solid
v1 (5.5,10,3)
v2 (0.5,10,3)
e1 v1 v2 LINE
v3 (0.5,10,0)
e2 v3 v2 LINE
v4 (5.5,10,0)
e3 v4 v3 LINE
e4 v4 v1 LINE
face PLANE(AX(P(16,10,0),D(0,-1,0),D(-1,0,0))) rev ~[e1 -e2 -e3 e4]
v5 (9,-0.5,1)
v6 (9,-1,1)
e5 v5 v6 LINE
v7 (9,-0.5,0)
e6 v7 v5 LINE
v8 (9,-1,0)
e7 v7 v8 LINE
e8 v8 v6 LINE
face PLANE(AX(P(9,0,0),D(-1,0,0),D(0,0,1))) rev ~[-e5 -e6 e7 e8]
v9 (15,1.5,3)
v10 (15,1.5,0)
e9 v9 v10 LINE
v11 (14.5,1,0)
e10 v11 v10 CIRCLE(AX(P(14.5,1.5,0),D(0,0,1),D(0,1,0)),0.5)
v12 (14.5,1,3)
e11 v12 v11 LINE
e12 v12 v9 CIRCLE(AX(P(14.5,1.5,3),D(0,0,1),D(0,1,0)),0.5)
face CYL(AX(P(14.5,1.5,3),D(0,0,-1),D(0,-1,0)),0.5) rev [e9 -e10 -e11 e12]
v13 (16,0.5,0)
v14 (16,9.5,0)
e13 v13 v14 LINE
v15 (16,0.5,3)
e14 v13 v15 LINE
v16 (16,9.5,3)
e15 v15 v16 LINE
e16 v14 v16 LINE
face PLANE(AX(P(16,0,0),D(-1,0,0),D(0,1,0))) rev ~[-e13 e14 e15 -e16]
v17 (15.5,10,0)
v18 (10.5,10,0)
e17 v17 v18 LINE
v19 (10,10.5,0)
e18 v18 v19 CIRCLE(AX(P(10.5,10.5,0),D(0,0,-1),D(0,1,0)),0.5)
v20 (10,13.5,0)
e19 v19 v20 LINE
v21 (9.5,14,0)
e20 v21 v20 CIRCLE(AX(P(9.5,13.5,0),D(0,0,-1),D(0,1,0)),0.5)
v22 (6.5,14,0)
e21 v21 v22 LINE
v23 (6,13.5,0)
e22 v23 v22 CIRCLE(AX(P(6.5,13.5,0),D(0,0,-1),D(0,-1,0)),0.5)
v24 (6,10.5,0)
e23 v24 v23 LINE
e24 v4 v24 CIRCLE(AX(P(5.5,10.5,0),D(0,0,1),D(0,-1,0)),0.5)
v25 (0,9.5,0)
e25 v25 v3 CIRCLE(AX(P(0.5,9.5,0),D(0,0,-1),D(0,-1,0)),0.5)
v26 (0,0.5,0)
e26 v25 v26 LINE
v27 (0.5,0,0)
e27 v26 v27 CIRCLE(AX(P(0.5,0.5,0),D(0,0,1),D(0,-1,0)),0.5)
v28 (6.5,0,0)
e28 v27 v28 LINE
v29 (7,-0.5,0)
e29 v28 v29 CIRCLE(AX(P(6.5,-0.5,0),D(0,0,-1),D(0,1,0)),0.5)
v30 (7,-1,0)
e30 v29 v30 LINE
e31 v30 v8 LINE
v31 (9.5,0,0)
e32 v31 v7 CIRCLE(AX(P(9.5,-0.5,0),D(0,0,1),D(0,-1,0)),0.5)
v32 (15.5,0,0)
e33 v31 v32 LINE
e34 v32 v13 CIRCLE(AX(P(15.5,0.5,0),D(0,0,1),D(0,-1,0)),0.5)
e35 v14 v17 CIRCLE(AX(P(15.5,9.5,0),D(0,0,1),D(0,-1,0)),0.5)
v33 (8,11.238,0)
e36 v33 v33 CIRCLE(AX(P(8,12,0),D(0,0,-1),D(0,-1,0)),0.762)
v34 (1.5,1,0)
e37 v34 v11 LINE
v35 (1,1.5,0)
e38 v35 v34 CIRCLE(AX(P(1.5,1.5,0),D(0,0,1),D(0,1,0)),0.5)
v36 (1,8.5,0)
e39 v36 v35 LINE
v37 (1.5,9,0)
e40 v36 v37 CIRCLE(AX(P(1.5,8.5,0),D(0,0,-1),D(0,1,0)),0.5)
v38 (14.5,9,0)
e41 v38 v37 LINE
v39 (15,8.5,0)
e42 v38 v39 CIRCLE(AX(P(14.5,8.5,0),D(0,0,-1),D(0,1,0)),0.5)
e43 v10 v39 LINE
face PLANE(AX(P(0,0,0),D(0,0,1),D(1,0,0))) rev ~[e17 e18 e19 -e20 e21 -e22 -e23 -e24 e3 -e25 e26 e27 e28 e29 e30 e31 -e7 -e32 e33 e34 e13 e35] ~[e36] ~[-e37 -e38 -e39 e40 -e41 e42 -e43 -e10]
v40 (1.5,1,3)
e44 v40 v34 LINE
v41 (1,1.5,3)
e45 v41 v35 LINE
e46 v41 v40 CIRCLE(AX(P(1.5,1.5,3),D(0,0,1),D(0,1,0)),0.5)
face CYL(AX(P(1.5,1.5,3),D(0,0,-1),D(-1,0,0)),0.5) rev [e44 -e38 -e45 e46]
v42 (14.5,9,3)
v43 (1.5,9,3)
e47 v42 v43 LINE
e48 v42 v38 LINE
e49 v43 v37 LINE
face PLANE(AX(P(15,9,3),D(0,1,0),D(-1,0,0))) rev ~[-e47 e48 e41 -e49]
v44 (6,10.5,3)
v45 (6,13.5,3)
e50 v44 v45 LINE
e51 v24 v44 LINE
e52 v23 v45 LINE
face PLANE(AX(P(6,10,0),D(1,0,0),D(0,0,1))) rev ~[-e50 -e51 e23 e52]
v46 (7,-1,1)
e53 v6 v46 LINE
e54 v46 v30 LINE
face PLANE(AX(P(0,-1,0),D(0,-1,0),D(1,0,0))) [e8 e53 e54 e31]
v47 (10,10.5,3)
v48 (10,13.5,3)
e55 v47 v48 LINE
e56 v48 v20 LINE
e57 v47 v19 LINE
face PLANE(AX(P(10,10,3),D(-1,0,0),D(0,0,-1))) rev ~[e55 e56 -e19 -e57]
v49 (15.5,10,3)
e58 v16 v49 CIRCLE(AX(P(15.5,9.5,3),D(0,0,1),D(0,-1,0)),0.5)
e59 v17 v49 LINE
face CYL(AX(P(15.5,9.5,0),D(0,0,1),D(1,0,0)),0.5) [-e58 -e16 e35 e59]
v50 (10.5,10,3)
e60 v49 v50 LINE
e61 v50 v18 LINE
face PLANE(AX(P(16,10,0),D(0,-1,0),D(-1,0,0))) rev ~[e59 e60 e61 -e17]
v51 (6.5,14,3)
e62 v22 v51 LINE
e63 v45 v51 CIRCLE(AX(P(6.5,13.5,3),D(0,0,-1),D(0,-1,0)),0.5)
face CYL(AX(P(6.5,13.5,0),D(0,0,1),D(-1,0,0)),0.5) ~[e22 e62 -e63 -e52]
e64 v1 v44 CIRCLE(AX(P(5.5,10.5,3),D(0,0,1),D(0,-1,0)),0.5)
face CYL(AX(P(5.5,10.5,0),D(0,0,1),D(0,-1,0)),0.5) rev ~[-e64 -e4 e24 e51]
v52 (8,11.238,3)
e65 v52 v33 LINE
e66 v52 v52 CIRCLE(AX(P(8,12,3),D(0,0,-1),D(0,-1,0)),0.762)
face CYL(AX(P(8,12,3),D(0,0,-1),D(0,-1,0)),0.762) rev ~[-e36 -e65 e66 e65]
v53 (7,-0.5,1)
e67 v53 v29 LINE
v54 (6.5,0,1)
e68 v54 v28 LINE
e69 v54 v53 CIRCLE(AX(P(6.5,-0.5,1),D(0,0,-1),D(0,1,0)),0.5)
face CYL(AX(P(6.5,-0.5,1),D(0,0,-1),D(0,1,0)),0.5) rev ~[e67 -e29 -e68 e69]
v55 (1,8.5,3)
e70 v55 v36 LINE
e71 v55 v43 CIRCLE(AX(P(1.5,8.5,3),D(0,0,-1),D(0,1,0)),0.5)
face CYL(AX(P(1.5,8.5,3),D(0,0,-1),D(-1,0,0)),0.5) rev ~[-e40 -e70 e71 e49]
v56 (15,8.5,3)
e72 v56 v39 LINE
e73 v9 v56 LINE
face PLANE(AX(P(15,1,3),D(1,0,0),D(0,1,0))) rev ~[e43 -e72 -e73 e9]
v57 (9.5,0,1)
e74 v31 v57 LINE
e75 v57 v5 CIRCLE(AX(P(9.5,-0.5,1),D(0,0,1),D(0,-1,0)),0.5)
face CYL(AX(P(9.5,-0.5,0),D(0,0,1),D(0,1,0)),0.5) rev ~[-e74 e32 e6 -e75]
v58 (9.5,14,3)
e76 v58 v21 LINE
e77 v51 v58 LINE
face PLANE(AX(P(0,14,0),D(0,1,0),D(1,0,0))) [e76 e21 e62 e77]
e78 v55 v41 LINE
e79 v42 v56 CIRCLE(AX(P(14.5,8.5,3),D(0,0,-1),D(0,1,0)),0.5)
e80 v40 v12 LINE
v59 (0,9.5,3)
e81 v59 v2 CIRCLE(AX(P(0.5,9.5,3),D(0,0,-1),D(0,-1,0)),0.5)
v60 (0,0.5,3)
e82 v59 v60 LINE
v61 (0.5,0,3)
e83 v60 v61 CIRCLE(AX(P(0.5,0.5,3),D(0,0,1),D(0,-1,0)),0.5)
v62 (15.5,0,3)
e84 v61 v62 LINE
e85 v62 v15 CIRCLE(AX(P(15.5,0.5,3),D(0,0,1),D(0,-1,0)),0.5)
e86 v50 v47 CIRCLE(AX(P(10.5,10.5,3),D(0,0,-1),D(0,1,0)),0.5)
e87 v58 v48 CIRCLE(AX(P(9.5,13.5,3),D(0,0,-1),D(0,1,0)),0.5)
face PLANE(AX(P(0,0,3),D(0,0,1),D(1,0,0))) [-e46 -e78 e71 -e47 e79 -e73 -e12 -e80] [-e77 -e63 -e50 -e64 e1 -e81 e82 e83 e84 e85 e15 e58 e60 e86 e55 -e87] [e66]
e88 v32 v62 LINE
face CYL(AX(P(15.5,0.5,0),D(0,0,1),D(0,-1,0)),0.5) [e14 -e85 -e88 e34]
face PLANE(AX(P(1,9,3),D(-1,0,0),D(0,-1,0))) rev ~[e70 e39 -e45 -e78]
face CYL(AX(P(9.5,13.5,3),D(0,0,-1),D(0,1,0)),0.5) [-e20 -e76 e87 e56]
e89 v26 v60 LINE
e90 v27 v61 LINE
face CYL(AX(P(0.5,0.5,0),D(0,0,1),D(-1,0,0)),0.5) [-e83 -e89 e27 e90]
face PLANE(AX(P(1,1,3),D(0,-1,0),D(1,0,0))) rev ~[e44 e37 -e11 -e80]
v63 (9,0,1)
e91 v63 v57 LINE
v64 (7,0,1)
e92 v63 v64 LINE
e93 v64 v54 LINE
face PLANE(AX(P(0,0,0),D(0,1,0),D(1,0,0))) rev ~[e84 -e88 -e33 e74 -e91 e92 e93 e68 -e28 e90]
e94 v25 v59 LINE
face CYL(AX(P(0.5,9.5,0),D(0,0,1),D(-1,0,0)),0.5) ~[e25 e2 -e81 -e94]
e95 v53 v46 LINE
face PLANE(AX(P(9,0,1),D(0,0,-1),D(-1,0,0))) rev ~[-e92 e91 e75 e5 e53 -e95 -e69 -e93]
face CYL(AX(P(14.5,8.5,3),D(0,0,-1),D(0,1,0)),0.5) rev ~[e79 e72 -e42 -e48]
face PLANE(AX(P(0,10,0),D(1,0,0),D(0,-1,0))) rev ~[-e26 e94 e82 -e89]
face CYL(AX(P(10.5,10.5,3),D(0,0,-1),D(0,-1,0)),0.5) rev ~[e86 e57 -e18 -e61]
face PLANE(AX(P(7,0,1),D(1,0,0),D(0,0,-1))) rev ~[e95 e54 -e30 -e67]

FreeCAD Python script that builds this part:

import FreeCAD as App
import Part
import Sketcher
from FreeCAD import Vector


def edges_at(feature, points):
    """Names of the edges that pass closest to the given points."""
    edges = feature.Shape.Edges
    near = lambda p: min(range(len(edges)), key=lambda i: edges[i].distToShape(Part.Vertex(*p))[0])
    return sorted({f"Edge{near(p) + 1}" for p in points})


def add_polygon(sketch, points):
    """Adds a closed chain of lines whose ends are joined by coincident constraints."""
    first, n = sketch.GeometryCount, len(points)
    for a, b in zip(points, points[1:] + points[:1]):
        sketch.addGeometry(Part.LineSegment(App.Vector(*a, 0), App.Vector(*b, 0)), False)
    for i in range(n):
        sketch.addConstraint(Sketcher.Constraint("Coincident", first + i, 2, first + (i + 1) % n, 1))

doc = App.newDocument("Part")
params = doc.addObject("Spreadsheet::Sheet", "Params")
for row, (alias, value) in enumerate([
    ("sketch1_width", "16 mm"),
    ("sketch1_height", "10 mm"),
    ("pad1_length", "3 mm"),
    ("sketch2_width", "14 mm"),
    ("sketch2_height", "8 mm"),
    ("sketch3_width", "4 mm"),
    ("sketch3_height", "3 mm"),
    ("pad2_length", "4 mm"),
    ("hole_diameter", "1.524 mm"),
    ("sketch5_width", "2 mm"),
    ("sketch5_height", "1 mm"),
    ("pad3_length", "1 mm"),
    ("fillet_radius", "0.5 mm"),
], start=1):
    params.set(f"A{row}", alias)
    params.set(f"B{row}", "=" + value)
    params.setAlias(f"B{row}", alias)

body = doc.addObject("PartDesign::Body", "Body")

# Sketch on XY plane
sketch1 = body.newObject("Sketcher::SketchObject", "Sketch")
sketch1.AttachmentSupport = (doc.getObject("XY_Plane"), [""])
sketch1.MapMode = "FlatFace"
add_polygon(sketch1, [(0, 10), (0, 0), (16, 0), (16, 10)])  # lines 0-3
sketch1.addConstraint([
    Sketcher.Constraint("Vertical", 0),
    Sketcher.Constraint("Horizontal", 1),
    Sketcher.Constraint("Vertical", 2),
    Sketcher.Constraint("Horizontal", 3),
    Sketcher.Constraint("Coincident", 0, 2, -1, 1),
    Sketcher.Constraint("DistanceX", 1, 1, 1, 2, 16.0),
    Sketcher.Constraint("DistanceY", 0, 2, 0, 1, 10.0),
])
sketch1.setExpression("Constraints[9]", "Params.sketch1_width")
sketch1.setExpression("Constraints[10]", "Params.sketch1_height")
pad1 = body.newObject("PartDesign::Pad", "Pad")
pad1.Profile = sketch1
pad1.setExpression("Length", "Params.pad1_length")

# Sketch on XY plane
sketch2 = body.newObject("Sketcher::SketchObject", "Sketch001")
sketch2.AttachmentSupport = (doc.getObject("XY_Plane"), [""])
sketch2.MapMode = "FlatFace"
sketch2.AttachmentOffset = App.Placement(Vector(0, 0, 3), App.Rotation())
add_polygon(sketch2, [(1, 9), (1, 1), (15, 1), (15, 9)])  # lines 0-3
sketch2.addConstraint([
    Sketcher.Constraint("Vertical", 0),
    Sketcher.Constraint("Horizontal", 1),
    Sketcher.Constraint("Vertical", 2),
    Sketcher.Constraint("Horizontal", 3),
    Sketcher.Constraint("DistanceX", 1, 1, 1, 2, 14.0),
    Sketcher.Constraint("DistanceY", 0, 2, 0, 1, 8.0),
    Sketcher.Constraint("DistanceX", -1, 1, 0, 2, 1.0),
    Sketcher.Constraint("DistanceY", -1, 1, 0, 2, 1.0),
])
sketch2.setExpression("Constraints[8]", "Params.sketch2_width")
sketch2.setExpression("Constraints[9]", "Params.sketch2_height")
pocket1 = body.newObject("PartDesign::Pocket", "Pocket")
pocket1.Profile = sketch2
pocket1.Type = "ThroughAll"

# Sketch on XZ plane
sketch3 = body.newObject("Sketcher::SketchObject", "Sketch002")
sketch3.AttachmentSupport = (doc.getObject("XZ_Plane"), [""])
sketch3.MapMode = "FlatFace"
sketch3.AttachmentOffset = App.Placement(Vector(0, 0, -10), App.Rotation())
add_polygon(sketch3, [(6, 0), (6, 3), (10, 3), (10, 0)])  # lines 0-3
sketch3.addConstraint([
    Sketcher.Constraint("Vertical", 0),
    Sketcher.Constraint("Horizontal", 1),
    Sketcher.Constraint("Vertical", 2),
    Sketcher.Constraint("Horizontal", 3),
    Sketcher.Constraint("PointOnObject", 2, 2, -1),
    Sketcher.Constraint("DistanceX", 1, 1, 1, 2, 4.0),
    Sketcher.Constraint("DistanceX", -1, 1, 0, 2, 6.0),
    Sketcher.Constraint("DistanceY", 0, 1, 0, 2, 3.0),
])
sketch3.setExpression("Constraints[9]", "Params.sketch3_width")
sketch3.setExpression("Constraints[11]", "Params.sketch3_height")
pad2 = body.newObject("PartDesign::Pad", "Pad001")
pad2.Profile = sketch3
pad2.setExpression("Length", "Params.pad2_length")
pad2.Reversed = True

# Sketch on XY plane
sketch4 = body.newObject("Sketcher::SketchObject", "Sketch003")
sketch4.AttachmentSupport = (doc.getObject("XY_Plane"), [""])
sketch4.MapMode = "FlatFace"
sketch4.AttachmentOffset = App.Placement(Vector(0, 0, 3), App.Rotation())
sketch4.addGeometry(Part.Circle(Vector(8, 12, 0), Vector(0, 0, 1), 0.8), False)
sketch4.addConstraint([
    Sketcher.Constraint("Diameter", 0, 1.524),
    Sketcher.Constraint("DistanceX", -1, 1, 0, 3, 8.0),
    Sketcher.Constraint("DistanceY", -1, 1, 0, 3, 12.0),
])
doc.recompute()
hole = body.newObject("PartDesign::Hole", "Hole")
hole.Profile = sketch4
hole.ThreadType = "None"
hole.setExpression("Diameter", "Params.hole_diameter")
hole.DepthType = "ThroughAll"

# Sketch on XZ plane
sketch5 = body.newObject("Sketcher::SketchObject", "Sketch004")
sketch5.AttachmentSupport = (doc.getObject("XZ_Plane"), [""])
sketch5.MapMode = "FlatFace"
add_polygon(sketch5, [(7, 1), (7, 0), (9, 0), (9, 1)])  # lines 0-3
sketch5.addConstraint([
    Sketcher.Constraint("Vertical", 0),
    Sketcher.Constraint("Horizontal", 1),
    Sketcher.Constraint("Vertical", 2),
    Sketcher.Constraint("Horizontal", 3),
    Sketcher.Constraint("PointOnObject", 0, 2, -1),
    Sketcher.Constraint("DistanceX", 1, 1, 1, 2, 2.0),
    Sketcher.Constraint("DistanceY", 0, 2, 0, 1, 1.0),
    Sketcher.Constraint("DistanceX", -1, 1, 0, 2, 7.0),
])
sketch5.setExpression("Constraints[9]", "Params.sketch5_width")
sketch5.setExpression("Constraints[10]", "Params.sketch5_height")
pad3 = body.newObject("PartDesign::Pad", "Pad002")
pad3.Profile = sketch5
pad3.setExpression("Length", "Params.pad3_length")
doc.recompute()

fillet = body.newObject("PartDesign::Fillet", "Fillet")
fillet.Base = (pad3, edges_at(pad3, [
    (1, 9, 1.5),
    (15, 9, 1.5),
    (15, 1, 1.5),
    (1, 1, 1.5),
    (10, 10, 1.5),
    (6, 10, 1.5),
    (6, 14, 1.5),
    (10, 14, 1.5),
    (16, 10, 1.5),
    (16, 0, 1.5),
    (0, 0, 1.5),
    (0, 10, 1.5),
    (7, 0, 0.5),
    (9, 0, 0.5),
]))
fillet.setExpression("Radius", "Params.fillet_radius")

doc.recompute()
